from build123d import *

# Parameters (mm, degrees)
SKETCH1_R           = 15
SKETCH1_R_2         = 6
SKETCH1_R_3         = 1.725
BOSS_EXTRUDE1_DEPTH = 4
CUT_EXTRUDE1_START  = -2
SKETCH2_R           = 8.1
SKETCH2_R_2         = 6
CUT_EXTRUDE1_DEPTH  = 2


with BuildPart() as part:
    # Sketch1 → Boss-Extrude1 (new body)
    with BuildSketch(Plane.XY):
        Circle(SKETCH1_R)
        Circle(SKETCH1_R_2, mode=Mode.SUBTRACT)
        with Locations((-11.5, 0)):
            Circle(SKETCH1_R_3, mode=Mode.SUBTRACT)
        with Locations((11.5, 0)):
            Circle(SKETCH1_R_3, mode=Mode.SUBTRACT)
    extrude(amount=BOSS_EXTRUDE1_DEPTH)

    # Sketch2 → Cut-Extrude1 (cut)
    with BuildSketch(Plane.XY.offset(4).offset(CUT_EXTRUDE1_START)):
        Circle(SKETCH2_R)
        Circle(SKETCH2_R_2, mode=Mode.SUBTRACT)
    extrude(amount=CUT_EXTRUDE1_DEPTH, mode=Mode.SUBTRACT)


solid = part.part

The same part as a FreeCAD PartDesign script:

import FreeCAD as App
import Part
import Sketcher

V = App.Vector

doc = App.newDocument("Part")
body = doc.addObject("PartDesign::Body", "Body")

sketch1 = body.newObject("Sketcher::SketchObject", "Sketch")
sketch1.AttachmentSupport = (doc.getObject("XY_Plane"), [""])
sketch1.MapMode = "FlatFace"
sketch1.addGeometry(Part.Circle(V(0, 0, 0), V(0, 0, 1), 15), False)
sketch1.addGeometry(Part.Circle(V(-11.5, 0, 0), V(0, 0, 1), 1.7), False)
sketch1.addGeometry(Part.Circle(V(0, 0, 0), V(0, 0, 1), 6), False)
sketch1.addGeometry(Part.Circle(V(11.5, 0, 0), V(0, 0, 1), 1.7), False)
sketch1.addConstraint(Sketcher.Constraint("Coincident", 0, 3, -1, 1))
sketch1.addConstraint(Sketcher.Constraint("Coincident", 2, 3, -1, 1))
sketch1.addConstraint(Sketcher.Constraint("Equal", 1, 3))
sketch1.addConstraint(Sketcher.Constraint("Symmetric", 1, 3, 3, 3, -1, 1))
sketch1.addConstraint(Sketcher.Constraint("PointOnObject", 1, 3, -1))
sketch1.addConstraint(Sketcher.Constraint("Diameter", 0, 30.0))
sketch1.addConstraint(Sketcher.Constraint("Diameter", 2, 12.0))
sketch1.addConstraint(Sketcher.Constraint("Diameter", 1, 3.45))
sketch1.addConstraint(Sketcher.Constraint("DistanceX", 1, 3, 3, 3, 23.0))
pad1 = body.newObject("PartDesign::Pad", "Pad")
pad1.Profile = sketch1
pad1.Length = 4

sketch2 = body.newObject("Sketcher::SketchObject", "Sketch001")
sketch2.AttachmentSupport = (doc.getObject("XY_Plane"), [""])
sketch2.MapMode = "FlatFace"
sketch2.AttachmentOffset = App.Placement(V(0, 0, 2), App.Rotation())
sketch2.addGeometry(Part.Circle(V(0, 0, 0), V(0, 0, 1), 8), False)
sketch2.addGeometry(Part.Circle(V(0, 0, 0), V(0, 0, 1), 6), False)
sketch2.addConstraint(Sketcher.Constraint("Coincident", 0, 3, -1, 1))
sketch2.addConstraint(Sketcher.Constraint("Coincident", 1, 3, -1, 1))
sketch2.addConstraint(Sketcher.Constraint("Diameter", 1, 12.0))
sketch2.addConstraint(Sketcher.Constraint("Diameter", 0, 16.2))
pocket1 = body.newObject("PartDesign::Pocket", "Pocket")
pocket1.Profile = sketch2
pocket1.Length = 2
pocket1.Reversed = True

doc.recompute()
